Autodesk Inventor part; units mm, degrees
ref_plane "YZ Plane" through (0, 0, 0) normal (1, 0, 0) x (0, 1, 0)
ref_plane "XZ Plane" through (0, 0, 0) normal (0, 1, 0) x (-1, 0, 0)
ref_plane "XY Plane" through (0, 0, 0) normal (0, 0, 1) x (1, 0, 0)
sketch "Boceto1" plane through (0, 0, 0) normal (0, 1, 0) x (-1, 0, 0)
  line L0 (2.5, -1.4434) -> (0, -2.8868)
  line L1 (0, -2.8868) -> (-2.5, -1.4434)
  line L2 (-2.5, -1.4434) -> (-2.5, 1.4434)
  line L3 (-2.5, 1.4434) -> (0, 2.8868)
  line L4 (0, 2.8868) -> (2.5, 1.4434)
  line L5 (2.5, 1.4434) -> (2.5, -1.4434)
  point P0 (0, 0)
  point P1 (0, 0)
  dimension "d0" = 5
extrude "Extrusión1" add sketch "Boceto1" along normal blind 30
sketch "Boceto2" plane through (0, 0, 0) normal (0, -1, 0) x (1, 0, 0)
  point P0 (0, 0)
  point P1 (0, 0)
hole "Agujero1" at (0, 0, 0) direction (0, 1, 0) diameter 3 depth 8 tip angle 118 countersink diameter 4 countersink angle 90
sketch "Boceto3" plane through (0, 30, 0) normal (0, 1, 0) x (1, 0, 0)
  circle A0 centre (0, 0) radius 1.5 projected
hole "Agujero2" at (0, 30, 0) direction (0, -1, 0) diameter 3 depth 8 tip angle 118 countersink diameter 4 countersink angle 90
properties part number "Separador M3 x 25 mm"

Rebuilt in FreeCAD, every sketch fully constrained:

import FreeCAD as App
import Part
import Sketcher
Q = App.Units.Quantity

doc = App.newDocument("Part")
body = doc.addObject("PartDesign::Body", "Body")

sketch1 = doc.addObject("Sketcher::SketchObject", "Sketch")
body.addObject(sketch1)
sketch1.AttachmentSupport = (doc.XZ_Plane, [""])
sketch1.MapMode = "FlatFace"
sketch1.addGeometry([
    Part.LineSegment(App.Vector(0, -2.9, 0), App.Vector(-2.5, -1.4, 0)),
    Part.LineSegment(App.Vector(-2.5, -1.4, 0), App.Vector(-2.5, 1.4, 0)),
    Part.LineSegment(App.Vector(-2.5, 1.4, 0), App.Vector(0, 2.9, 0)),
    Part.LineSegment(App.Vector(0, 2.9, 0), App.Vector(2.5, 1.4, 0)),
    Part.LineSegment(App.Vector(2.5, 1.4, 0), App.Vector(2.5, -1.4, 0)),
    Part.LineSegment(App.Vector(2.5, -1.4, 0), App.Vector(0, -2.9, 0)),
], False)
sketch1.addConstraint([
    Sketcher.Constraint("Coincident", 0, 2, 1, 1),
    Sketcher.Constraint("Coincident", 1, 2, 2, 1),
    Sketcher.Constraint("Coincident", 2, 2, 3, 1),
    Sketcher.Constraint("Coincident", 3, 2, 4, 1),
    Sketcher.Constraint("Coincident", 4, 2, 5, 1),
    Sketcher.Constraint("Coincident", 5, 2, 0, 1),
    Sketcher.Constraint("Vertical", 1),
    Sketcher.Constraint("Vertical", 4),
    Sketcher.Constraint("Symmetric", 0, 2, 3, 2, -1, 1),
    Sketcher.Constraint("Symmetric", 2, 2, 5, 2, -1, 1),
    Sketcher.Constraint("PointOnObject", 2, 2, -2),
    Sketcher.Constraint("Parallel", 2, 5),
    Sketcher.Constraint("Horizontal", 1, 2, 3, 2),
    Sketcher.Constraint("DistanceX", 1, 2, 3, 2, Q("5 mm")),
    Sketcher.Constraint("Angle", 0, Q("149.9996 deg")),
    Sketcher.Constraint("DistanceY", 1, 1, 1, 2, Q("2.8868 mm")),
])
pad1 = doc.addObject("PartDesign::Pad", "Pad")
body.addObject(pad1)
pad1.Profile = sketch1
pad1.Length = 30
pad1.Reversed = True

sketch2 = doc.addObject("Sketcher::SketchObject", "Sketch001")
body.addObject(sketch2)
sketch2.AttachmentSupport = (doc.XZ_Plane, [""])
sketch2.MapMode = "FlatFace"
sketch2.addGeometry(Part.Circle(App.Vector(0, 0, 0), App.Vector(0, 0, 1), 1.5), False)
sketch2.addConstraint([
    Sketcher.Constraint("Coincident", 0, 3, -1, 1),
    Sketcher.Constraint("Diameter", 0, Q("3 mm")),
])
doc.recompute()
hole = doc.addObject("PartDesign::Hole", "Hole")
body.addObject(hole)
hole.Profile = sketch2
hole.ThreadType = "None"
hole.Diameter = 3
hole.DepthType = "Dimension"
hole.Depth = 8
hole.DrillPoint = "Angled"
hole.DrillPointAngle = 118
hole.HoleCutType = "Countersink"
hole.HoleCutDiameter = 4
hole.HoleCutCountersinkAngle = 90

sketch3 = doc.addObject("Sketcher::SketchObject", "Sketch002")
body.addObject(sketch3)
sketch3.AttachmentSupport = (doc.XZ_Plane, [""])
sketch3.MapMode = "FlatFace"
sketch3.AttachmentOffset = App.Placement(App.Vector(0, 0, -30), App.Rotation())
sketch3.addGeometry(Part.Circle(App.Vector(0, 0, 0), App.Vector(0, 0, 1), 1.5), False)
sketch3.addConstraint([
    Sketcher.Constraint("Coincident", 0, 3, -1, 1),
    Sketcher.Constraint("Diameter", 0, Q("3 mm")),
])
doc.recompute()
hole2 = doc.addObject("PartDesign::Hole", "Hole001")
body.addObject(hole2)
hole2.Profile = sketch3
hole2.ThreadType = "None"
hole2.Diameter = 3
hole2.DepthType = "Dimension"
hole2.Depth = 8
hole2.DrillPoint = "Angled"
hole2.DrillPointAngle = 118
hole2.HoleCutType = "Countersink"
hole2.HoleCutDiameter = 4
hole2.HoleCutCountersinkAngle = 90
hole2.Reversed = True

doc.recompute()
